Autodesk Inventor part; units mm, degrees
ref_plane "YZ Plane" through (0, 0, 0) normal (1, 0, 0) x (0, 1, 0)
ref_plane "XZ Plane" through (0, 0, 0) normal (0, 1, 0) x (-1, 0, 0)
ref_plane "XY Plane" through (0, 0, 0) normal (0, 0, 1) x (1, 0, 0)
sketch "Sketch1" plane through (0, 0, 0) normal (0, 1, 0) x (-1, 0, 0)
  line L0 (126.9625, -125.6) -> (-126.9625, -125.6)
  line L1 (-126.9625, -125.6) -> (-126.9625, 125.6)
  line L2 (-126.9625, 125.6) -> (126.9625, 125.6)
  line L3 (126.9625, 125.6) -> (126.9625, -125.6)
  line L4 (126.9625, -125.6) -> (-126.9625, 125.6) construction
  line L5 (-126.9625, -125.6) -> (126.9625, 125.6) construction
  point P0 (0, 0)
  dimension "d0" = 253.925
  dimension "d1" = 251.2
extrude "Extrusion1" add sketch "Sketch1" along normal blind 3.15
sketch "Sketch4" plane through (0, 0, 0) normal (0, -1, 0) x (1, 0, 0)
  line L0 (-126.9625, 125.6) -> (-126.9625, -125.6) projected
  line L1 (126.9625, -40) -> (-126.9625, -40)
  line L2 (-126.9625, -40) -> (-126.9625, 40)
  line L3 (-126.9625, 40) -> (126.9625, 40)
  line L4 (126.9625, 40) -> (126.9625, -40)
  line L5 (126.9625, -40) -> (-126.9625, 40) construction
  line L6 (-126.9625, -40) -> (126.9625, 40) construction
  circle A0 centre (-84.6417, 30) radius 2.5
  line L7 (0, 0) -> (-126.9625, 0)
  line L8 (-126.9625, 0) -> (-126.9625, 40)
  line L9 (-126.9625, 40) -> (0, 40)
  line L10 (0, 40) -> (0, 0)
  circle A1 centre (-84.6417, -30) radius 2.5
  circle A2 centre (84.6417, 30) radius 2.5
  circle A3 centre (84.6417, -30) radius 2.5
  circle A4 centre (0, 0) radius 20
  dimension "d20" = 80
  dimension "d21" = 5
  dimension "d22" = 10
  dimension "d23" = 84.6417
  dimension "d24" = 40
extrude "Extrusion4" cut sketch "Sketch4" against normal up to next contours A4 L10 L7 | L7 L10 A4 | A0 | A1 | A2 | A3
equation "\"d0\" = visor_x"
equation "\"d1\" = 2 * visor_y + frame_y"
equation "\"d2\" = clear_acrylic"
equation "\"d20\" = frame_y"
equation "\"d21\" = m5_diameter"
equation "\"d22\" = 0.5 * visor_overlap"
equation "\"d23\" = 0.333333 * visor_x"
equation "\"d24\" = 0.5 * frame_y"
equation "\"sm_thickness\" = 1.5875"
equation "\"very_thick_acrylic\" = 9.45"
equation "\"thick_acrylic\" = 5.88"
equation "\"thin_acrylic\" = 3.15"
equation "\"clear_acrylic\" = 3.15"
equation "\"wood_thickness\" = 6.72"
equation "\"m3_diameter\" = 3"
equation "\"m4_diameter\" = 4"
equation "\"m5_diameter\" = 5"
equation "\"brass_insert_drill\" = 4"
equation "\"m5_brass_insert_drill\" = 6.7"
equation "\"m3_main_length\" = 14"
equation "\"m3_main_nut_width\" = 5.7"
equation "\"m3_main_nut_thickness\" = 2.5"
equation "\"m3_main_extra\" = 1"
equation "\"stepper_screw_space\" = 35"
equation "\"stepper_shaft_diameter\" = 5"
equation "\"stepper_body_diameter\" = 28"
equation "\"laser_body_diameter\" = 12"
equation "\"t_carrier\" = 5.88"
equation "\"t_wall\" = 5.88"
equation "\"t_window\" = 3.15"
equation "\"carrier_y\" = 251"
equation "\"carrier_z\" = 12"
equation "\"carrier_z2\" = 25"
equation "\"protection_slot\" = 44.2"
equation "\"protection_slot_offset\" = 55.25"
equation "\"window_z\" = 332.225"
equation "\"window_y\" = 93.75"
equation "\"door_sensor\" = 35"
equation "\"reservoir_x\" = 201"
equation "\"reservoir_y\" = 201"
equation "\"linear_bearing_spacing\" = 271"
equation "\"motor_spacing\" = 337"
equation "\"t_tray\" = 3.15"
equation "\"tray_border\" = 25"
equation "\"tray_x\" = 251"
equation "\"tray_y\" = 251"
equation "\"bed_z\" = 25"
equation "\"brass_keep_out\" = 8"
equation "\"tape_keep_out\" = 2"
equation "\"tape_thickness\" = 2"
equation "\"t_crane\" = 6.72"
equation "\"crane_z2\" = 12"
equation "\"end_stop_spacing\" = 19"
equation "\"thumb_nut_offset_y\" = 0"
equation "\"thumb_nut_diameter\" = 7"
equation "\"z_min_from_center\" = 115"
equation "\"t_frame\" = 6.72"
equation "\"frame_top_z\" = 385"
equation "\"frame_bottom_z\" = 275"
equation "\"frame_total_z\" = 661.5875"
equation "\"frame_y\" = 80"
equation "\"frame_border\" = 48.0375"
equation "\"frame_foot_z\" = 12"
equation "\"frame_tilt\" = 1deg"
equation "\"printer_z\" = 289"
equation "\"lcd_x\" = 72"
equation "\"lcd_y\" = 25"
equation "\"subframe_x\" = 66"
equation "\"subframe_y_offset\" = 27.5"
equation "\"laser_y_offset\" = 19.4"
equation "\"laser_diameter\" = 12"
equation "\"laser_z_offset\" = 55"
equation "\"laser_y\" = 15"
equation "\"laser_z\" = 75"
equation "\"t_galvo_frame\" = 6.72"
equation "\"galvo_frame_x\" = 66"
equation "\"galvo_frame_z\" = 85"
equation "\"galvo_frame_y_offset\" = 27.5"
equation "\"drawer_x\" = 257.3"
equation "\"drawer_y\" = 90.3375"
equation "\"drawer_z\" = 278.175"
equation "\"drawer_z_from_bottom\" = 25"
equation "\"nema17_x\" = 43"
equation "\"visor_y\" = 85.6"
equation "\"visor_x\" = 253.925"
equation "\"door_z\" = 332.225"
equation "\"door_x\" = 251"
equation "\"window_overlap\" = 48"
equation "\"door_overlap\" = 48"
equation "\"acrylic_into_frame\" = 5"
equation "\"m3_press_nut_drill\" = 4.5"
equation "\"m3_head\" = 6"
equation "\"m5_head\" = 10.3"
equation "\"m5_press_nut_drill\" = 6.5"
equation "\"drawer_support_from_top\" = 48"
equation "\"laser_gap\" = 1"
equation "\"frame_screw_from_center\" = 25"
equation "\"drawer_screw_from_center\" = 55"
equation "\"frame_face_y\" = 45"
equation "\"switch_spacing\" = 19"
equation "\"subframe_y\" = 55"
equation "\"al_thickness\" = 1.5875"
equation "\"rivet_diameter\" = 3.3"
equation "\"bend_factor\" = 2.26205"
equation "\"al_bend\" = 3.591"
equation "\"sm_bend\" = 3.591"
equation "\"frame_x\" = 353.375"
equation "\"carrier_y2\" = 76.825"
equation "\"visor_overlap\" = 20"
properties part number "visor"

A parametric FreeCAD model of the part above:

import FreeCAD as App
import Part
import Sketcher
from FreeCAD import Vector

doc = App.newDocument("Part")
params = doc.addObject("Spreadsheet::Sheet", "Params")
for row, (alias, value) in enumerate([
    ("sketch1_height", "251.2 mm"),
    ("pad1_length", "3.15 mm"),
    ("sketch2_diameter", "40 mm"),
    ("sketch2_diameter2", "5 mm"),
], start=1):
    params.set(f"A{row}", alias)
    params.set(f"B{row}", "=" + value)
    params.setAlias(f"B{row}", alias)

body = doc.addObject("PartDesign::Body", "Body")

# Sketch on XZ plane
sketch1 = body.newObject("Sketcher::SketchObject", "Sketch")
sketch1.AttachmentSupport = (doc.getObject("XZ_Plane"), [""])
sketch1.MapMode = "FlatFace"
sketch1.addGeometry(Part.LineSegment(Vector(127, -126, 0), Vector(-127, -126, 0)), False)
sketch1.addGeometry(Part.LineSegment(Vector(-127, -126, 0), Vector(-127, 126, 0)), False)
sketch1.addGeometry(Part.LineSegment(Vector(-127, 126, 0), Vector(127, 126, 0)), False)
sketch1.addGeometry(Part.LineSegment(Vector(127, 126, 0), Vector(127, -126, 0)), False)
sketch1.addConstraint(Sketcher.Constraint("Coincident", 0, 2, 1, 1))
sketch1.addConstraint(Sketcher.Constraint("Coincident", 1, 2, 2, 1))
sketch1.addConstraint(Sketcher.Constraint("Coincident", 2, 2, 3, 1))
sketch1.addConstraint(Sketcher.Constraint("Coincident", 3, 2, 0, 1))
sketch1.addConstraint(Sketcher.Constraint("Horizontal", 0))
sketch1.addConstraint(Sketcher.Constraint("Vertical", 1))
sketch1.addConstraint(Sketcher.Constraint("Horizontal", 2))
sketch1.addConstraint(Sketcher.Constraint("Vertical", 3))
sketch1.addConstraint(Sketcher.Constraint("Symmetric", 0, 2, 2, 2, -1, 1))
sketch1.addConstraint(Sketcher.Constraint("DistanceY", 1, 1, 1, 2, 251.2))
sketch1.addConstraint(Sketcher.Constraint("DistanceX", 0, 2, 0, 1, 253.925))
sketch1.setExpression("Constraints[9]", "Params.sketch1_height")
pad1 = body.newObject("PartDesign::Pad", "Pad")
pad1.Profile = sketch1
pad1.setExpression("Length", "Params.pad1_length")
pad1.Reversed = True

# Sketch on XZ plane
sketch2 = body.newObject("Sketcher::SketchObject", "Sketch001")
sketch2.AttachmentSupport = (doc.getObject("XZ_Plane"), [""])
sketch2.MapMode = "FlatFace"
sketch2.addGeometry(Part.Circle(Vector(0, 0, 0), Vector(0, 0, 1), 20), False)
sketch2.addGeometry(Part.Circle(Vector(-84.6, 30, 0), Vector(0, 0, 1), 2.5), False)
sketch2.addGeometry(Part.Circle(Vector(-84.6, -30, 0), Vector(0, 0, 1), 2.5), False)
sketch2.addGeometry(Part.Circle(Vector(84.6, 30, 0), Vector(0, 0, 1), 2.5), False)
sketch2.addGeometry(Part.Circle(Vector(84.6, -30, 0), Vector(0, 0, 1), 2.5), False)
sketch2.addConstraint(Sketcher.Constraint("Coincident", 0, 3, -1, 1))
sketch2.addConstraint(Sketcher.Constraint("Equal", 1, 2))
sketch2.addConstraint(Sketcher.Constraint("Equal", 2, 3))
sketch2.addConstraint(Sketcher.Constraint("Equal", 3, 4))
sketch2.addConstraint(Sketcher.Constraint("Symmetric", 2, 3, 3, 3, -1, 1))
sketch2.addConstraint(Sketcher.Constraint("Symmetric", 1, 3, 4, 3, -1, 1))
sketch2.addConstraint(Sketcher.Constraint("Symmetric", 1, 3, 3, 3, -2))
sketch2.addConstraint(Sketcher.Constraint("Diameter", 0, 40.0))
sketch2.addConstraint(Sketcher.Constraint("Diameter", 1, 5.0))
sketch2.addConstraint(Sketcher.Constraint("DistanceY", -1, 1, 1, 3, 30.0))
sketch2.addConstraint(Sketcher.Constraint("DistanceX", 1, 3, -1, 1, 84.6417))
sketch2.setExpression("Constraints[7]", "Params.sketch2_diameter")
sketch2.setExpression("Constraints[8]", "Params.sketch2_diameter2")
pocket1 = body.newObject("PartDesign::Pocket", "Pocket")
pocket1.Profile = sketch2
pocket1.Type = "UpToFirst"

doc.recompute()
